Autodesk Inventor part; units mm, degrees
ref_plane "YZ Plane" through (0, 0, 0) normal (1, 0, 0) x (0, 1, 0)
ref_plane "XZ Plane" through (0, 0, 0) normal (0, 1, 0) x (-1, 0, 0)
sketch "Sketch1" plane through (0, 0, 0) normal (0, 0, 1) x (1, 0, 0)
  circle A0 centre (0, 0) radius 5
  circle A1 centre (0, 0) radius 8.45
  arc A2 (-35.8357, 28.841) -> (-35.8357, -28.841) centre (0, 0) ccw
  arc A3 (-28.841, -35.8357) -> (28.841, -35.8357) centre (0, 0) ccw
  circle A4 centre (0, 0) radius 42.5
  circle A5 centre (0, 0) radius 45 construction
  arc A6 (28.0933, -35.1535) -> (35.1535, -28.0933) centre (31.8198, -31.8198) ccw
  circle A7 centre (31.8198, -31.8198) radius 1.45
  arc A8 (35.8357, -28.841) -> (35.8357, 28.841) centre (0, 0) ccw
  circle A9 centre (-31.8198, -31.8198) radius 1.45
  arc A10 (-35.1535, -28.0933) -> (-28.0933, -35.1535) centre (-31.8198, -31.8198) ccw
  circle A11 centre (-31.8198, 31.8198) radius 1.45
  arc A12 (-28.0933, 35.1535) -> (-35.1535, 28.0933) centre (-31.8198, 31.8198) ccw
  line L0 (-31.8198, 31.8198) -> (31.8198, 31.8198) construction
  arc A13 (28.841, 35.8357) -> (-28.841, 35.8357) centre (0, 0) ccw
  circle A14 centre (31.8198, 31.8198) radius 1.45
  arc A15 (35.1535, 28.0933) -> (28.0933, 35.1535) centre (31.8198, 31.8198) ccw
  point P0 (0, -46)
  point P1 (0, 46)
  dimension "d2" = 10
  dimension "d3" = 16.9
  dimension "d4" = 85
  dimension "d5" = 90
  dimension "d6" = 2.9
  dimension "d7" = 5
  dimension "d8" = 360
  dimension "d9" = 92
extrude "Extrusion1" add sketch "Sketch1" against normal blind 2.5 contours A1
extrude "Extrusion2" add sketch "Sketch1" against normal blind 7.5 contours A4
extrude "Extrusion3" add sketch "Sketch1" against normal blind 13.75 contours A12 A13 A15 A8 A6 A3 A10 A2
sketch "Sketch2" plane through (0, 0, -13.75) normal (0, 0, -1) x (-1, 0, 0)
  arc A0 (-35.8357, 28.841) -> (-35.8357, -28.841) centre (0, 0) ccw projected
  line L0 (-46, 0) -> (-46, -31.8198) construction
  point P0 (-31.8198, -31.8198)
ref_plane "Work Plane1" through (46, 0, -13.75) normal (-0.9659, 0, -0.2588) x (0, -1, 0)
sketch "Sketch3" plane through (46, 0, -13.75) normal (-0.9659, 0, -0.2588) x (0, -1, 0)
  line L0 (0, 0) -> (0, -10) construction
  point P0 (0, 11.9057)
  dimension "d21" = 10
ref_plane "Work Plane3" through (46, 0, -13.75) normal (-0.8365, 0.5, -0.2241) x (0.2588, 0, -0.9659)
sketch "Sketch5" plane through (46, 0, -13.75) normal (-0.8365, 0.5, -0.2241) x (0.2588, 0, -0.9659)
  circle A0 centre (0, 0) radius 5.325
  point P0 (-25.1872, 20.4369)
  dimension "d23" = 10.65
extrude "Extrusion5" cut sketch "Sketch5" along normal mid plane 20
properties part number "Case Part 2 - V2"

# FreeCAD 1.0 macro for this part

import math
import FreeCAD as App
import Part
import Sketcher

V = App.Vector

doc = App.newDocument("Part")
body = doc.addObject("PartDesign::Body", "Body")

# Sketch on XY plane
sketch1 = body.newObject("Sketcher::SketchObject", "Sketch")
sketch1.AttachmentSupport = (doc.getObject("XY_Plane"), [""])
sketch1.MapMode = "FlatFace"
sketch1.addGeometry(Part.Circle(V(0, 0, 0), V(0, 0, 1), 8), False)
sketch1.addGeometry(Part.Circle(V(0, 0, 0), V(0, 0, 1), 5), False)
sketch1.addConstraint(Sketcher.Constraint("Coincident", 0, 3, -1, 1))
sketch1.addConstraint(Sketcher.Constraint("Coincident", 1, 3, -1, 1))
sketch1.addConstraint(Sketcher.Constraint("Diameter", 1, 10.0))
sketch1.addConstraint(Sketcher.Constraint("Diameter", 0, 16.9))
pad1 = body.newObject("PartDesign::Pad", "Pad")
pad1.Profile = sketch1
pad1.Length = 2.5
pad1.Reversed = True

# Sketch on XY plane
sketch2 = body.newObject("Sketcher::SketchObject", "Sketch001")
sketch2.AttachmentSupport = (doc.getObject("XY_Plane"), [""])
sketch2.MapMode = "FlatFace"
sketch2.addGeometry(Part.Circle(V(0, 0, 0), V(0, 0, 1), 42), False)
sketch2.addGeometry(Part.Circle(V(0, 0, 0), V(0, 0, 1), 8), False)
sketch2.addConstraint(Sketcher.Constraint("Coincident", 0, 3, -1, 1))
sketch2.addConstraint(Sketcher.Constraint("Coincident", 1, 3, -1, 1))
sketch2.addConstraint(Sketcher.Constraint("Diameter", 0, 85.0))
sketch2.addConstraint(Sketcher.Constraint("Diameter", 1, 16.9))
pad2 = body.newObject("PartDesign::Pad", "Pad001")
pad2.Profile = sketch2
pad2.Length = 7.5
pad2.Reversed = True

# Sketch on XY plane
sketch3 = body.newObject("Sketcher::SketchObject", "Sketch002")
sketch3.AttachmentSupport = (doc.getObject("XY_Plane"), [""])
sketch3.MapMode = "FlatFace"
sketch3.addGeometry(Part.ArcOfCircle(Part.Circle(V(-31.8, 31.8, 0), V(0, 0, 1), 5), math.radians(53), math.radians(217)), False)
sketch3.addGeometry(Part.ArcOfCircle(Part.Circle(V(0, 0, 0), V(0, 0, 1), 46), math.radians(141), math.radians(219)), False)
sketch3.addGeometry(Part.ArcOfCircle(Part.Circle(V(-31.8, -31.8, 0), V(0, 0, 1), 5), math.radians(143), math.radians(307)), False)
sketch3.addGeometry(Part.ArcOfCircle(Part.Circle(V(0, 0, 0), V(0, 0, 1), 46), math.radians(-129), math.radians(-51)), False)
sketch3.addGeometry(Part.ArcOfCircle(Part.Circle(V(31.8, -31.8, 0), V(0, 0, 1), 5), math.radians(-127), math.radians(37)), False)
sketch3.addGeometry(Part.ArcOfCircle(Part.Circle(V(0, 0, 0), V(0, 0, 1), 46), math.radians(-39), math.radians(39)), False)
sketch3.addGeometry(Part.ArcOfCircle(Part.Circle(V(31.8, 31.8, 0), V(0, 0, 1), 5), math.radians(-37), math.radians(127)), False)
sketch3.addGeometry(Part.ArcOfCircle(Part.Circle(V(0, 0, 0), V(0, 0, 1), 46), math.radians(51), math.radians(129)), False)
sketch3.addGeometry(Part.Circle(V(-31.8, -31.8, 0), V(0, 0, 1), 1.4), False)
sketch3.addGeometry(Part.Circle(V(31.8, -31.8, 0), V(0, 0, 1), 1.4), False)
sketch3.addGeometry(Part.Circle(V(-31.8, 31.8, 0), V(0, 0, 1), 1.4), False)
sketch3.addGeometry(Part.Circle(V(0, 0, 0), V(0, 0, 1), 42.5), False)
sketch3.addGeometry(Part.Circle(V(31.8, 31.8, 0), V(0, 0, 1), 1.4), False)
sketch3.addConstraint(Sketcher.Constraint("Coincident", 0, 2, 1, 1))
sketch3.addConstraint(Sketcher.Constraint("Coincident", 1, 2, 2, 1))
sketch3.addConstraint(Sketcher.Constraint("Coincident", 2, 2, 3, 1))
sketch3.addConstraint(Sketcher.Constraint("Coincident", 3, 2, 4, 1))
sketch3.addConstraint(Sketcher.Constraint("Coincident", 4, 2, 5, 1))
sketch3.addConstraint(Sketcher.Constraint("Coincident", 5, 2, 6, 1))
sketch3.addConstraint(Sketcher.Constraint("Coincident", 6, 2, 7, 1))
sketch3.addConstraint(Sketcher.Constraint("Coincident", 7, 2, 0, 1))
sketch3.addConstraint(Sketcher.Constraint("Coincident", 1, 3, -1, 1))
sketch3.addConstraint(Sketcher.Constraint("Coincident", 3, 3, -1, 1))
sketch3.addConstraint(Sketcher.Constraint("Coincident", 5, 3, -1, 1))
sketch3.addConstraint(Sketcher.Constraint("Coincident", 7, 3, -1, 1))
sketch3.addConstraint(Sketcher.Constraint("Coincident", 11, 3, -1, 1))
sketch3.addConstraint(Sketcher.Constraint("Coincident", 8, 3, 2, 3))
sketch3.addConstraint(Sketcher.Constraint("Coincident", 9, 3, 4, 3))
sketch3.addConstraint(Sketcher.Constraint("Coincident", 10, 3, 0, 3))
sketch3.addConstraint(Sketcher.Constraint("Coincident", 12, 3, 6, 3))
sketch3.addConstraint(Sketcher.Constraint("Equal", 0, 2))
sketch3.addConstraint(Sketcher.Constraint("Equal", 1, 3))
sketch3.addConstraint(Sketcher.Constraint("Equal", 2, 4))
sketch3.addConstraint(Sketcher.Constraint("Equal", 3, 5))
sketch3.addConstraint(Sketcher.Constraint("Equal", 4, 6))
sketch3.addConstraint(Sketcher.Constraint("Equal", 5, 7))
sketch3.addConstraint(Sketcher.Constraint("Equal", 8, 9))
sketch3.addConstraint(Sketcher.Constraint("Equal", 9, 10))
sketch3.addConstraint(Sketcher.Constraint("Equal", 10, 12))
sketch3.addConstraint(Sketcher.Constraint("Symmetric", 0, 3, 4, 3, -1, 1))
sketch3.addConstraint(Sketcher.Constraint("Symmetric", 2, 3, 6, 3, -1, 1))
sketch3.addConstraint(Sketcher.Constraint("Symmetric", 2, 3, 4, 3, -2))
sketch3.addConstraint(Sketcher.Constraint("Diameter", 11, 85.0))
sketch3.addConstraint(Sketcher.Constraint("Radius", 0, 5.0))
sketch3.addConstraint(Sketcher.Constraint("Radius", 1, 46.0))
sketch3.addConstraint(Sketcher.Constraint("Diameter", 8, 2.9))
sketch3.addConstraint(Sketcher.Constraint("DistanceY", -1, 1, 0, 2, 28.841))
sketch3.addConstraint(Sketcher.Constraint("DistanceX", 2, 2, -1, 1, 28.841))
pad3 = body.newObject("PartDesign::Pad", "Pad002")
pad3.Profile = sketch3
pad3.Length = 13.75
pad3.Reversed = True

# Sketch on an angled plane
sketch4 = body.newObject("Sketcher::SketchObject", "Sketch003")
sketch4.Placement = App.Placement(V(46, 0, -13.75), App.Rotation(V(0.258787128, 0.000019078, -0.965934378), V(-0.482974249, -0.866018628, -0.12941256), V(-0.836519633, 0.500011735, -0.22410526), "ZXY"))
sketch4.addGeometry(Part.Circle(V(0, 0, 0), V(0, 0, 1), 5), False)
sketch4.addConstraint(Sketcher.Constraint("Coincident", 0, 3, -1, 1))
sketch4.addConstraint(Sketcher.Constraint("Diameter", 0, 10.65))
pocket1 = body.newObject("PartDesign::Pocket", "Pocket")
pocket1.Profile = sketch4
pocket1.Length = 20
pocket1.Midplane = True

doc.recompute()
